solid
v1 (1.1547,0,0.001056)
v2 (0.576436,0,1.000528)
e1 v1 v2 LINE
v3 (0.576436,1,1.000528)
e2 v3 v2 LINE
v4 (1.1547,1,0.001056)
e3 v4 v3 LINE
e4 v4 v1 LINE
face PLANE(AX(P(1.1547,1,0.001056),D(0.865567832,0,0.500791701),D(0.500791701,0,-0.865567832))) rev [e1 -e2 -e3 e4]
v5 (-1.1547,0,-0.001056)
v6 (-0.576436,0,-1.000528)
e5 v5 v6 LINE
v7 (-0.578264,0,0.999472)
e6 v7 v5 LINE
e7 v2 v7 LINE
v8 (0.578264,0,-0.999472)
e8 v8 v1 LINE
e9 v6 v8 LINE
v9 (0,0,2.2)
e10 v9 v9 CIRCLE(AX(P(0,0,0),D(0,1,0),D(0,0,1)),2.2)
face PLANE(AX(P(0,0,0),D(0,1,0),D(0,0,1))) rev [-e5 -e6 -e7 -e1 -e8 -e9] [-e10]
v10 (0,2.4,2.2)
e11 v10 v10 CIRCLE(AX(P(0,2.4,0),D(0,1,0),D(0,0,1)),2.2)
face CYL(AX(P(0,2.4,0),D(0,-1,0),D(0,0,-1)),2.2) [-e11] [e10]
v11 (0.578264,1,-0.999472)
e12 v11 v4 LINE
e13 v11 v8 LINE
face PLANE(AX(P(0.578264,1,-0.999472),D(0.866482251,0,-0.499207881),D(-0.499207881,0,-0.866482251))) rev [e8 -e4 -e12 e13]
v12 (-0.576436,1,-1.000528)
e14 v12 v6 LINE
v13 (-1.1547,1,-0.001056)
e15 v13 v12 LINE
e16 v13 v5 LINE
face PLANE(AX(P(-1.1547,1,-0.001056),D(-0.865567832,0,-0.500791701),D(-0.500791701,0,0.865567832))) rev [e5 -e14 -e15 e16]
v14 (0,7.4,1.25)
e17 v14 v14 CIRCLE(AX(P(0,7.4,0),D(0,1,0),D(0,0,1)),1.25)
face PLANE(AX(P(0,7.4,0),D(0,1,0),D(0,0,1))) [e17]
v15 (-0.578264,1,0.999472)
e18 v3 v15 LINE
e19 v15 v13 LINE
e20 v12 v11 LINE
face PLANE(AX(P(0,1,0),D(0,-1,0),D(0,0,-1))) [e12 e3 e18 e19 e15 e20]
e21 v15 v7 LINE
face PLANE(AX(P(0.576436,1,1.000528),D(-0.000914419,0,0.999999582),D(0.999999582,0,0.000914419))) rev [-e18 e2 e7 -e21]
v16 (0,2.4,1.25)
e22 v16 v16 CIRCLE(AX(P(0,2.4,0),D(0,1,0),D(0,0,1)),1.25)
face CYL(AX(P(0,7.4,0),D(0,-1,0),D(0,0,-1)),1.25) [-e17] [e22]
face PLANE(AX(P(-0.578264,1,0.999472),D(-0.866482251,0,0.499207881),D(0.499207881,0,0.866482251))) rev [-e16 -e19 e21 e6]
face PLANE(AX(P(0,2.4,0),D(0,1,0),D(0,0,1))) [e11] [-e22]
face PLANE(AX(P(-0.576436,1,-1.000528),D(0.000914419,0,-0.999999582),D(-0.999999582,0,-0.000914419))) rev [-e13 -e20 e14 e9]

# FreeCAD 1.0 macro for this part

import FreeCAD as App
import Part
import Sketcher
from FreeCAD import Vector
Q = App.Units.Quantity

doc = App.newDocument("Part")
params = doc.addObject("Spreadsheet::Sheet", "Params")
for row, (alias, value) in enumerate([
    ("sketch1_diameter", "4.4 mm"),
    ("pad1_length", "2.4 mm"),
    ("sketch2_diameter", "2.5 mm"),
    ("pad2_length", "5 mm"),
    ("pocket1_length", "1 mm"),
], start=1):
    params.set(f"A{row}", alias)
    params.set(f"B{row}", "=" + value)
    params.setAlias(f"B{row}", alias)

body = doc.addObject("PartDesign::Body", "Body")

# Sketch on XZ plane
sketch1 = doc.addObject("Sketcher::SketchObject", "Sketch")
body.addObject(sketch1)
sketch1.AttachmentSupport = (doc.XZ_Plane, [""])
sketch1.MapMode = "FlatFace"
sketch1.addGeometry(Part.Circle(Vector(0, 0, 0), Vector(0, 0, 1), 2.2), False)
sketch1.addConstraint(Sketcher.Constraint("Coincident", 0, 3, -1, 1))
sketch1.addConstraint(Sketcher.Constraint("Diameter", 0, Q("4.4 mm")))
sketch1.setExpression("Constraints[1]", "Params.sketch1_diameter")
pad1 = doc.addObject("PartDesign::Pad", "Pad")
body.addObject(pad1)
pad1.Profile = sketch1
pad1.setExpression("Length", "Params.pad1_length")
pad1.Reversed = True

# Sketch on XZ plane
sketch2 = doc.addObject("Sketcher::SketchObject", "Sketch001")
body.addObject(sketch2)
sketch2.AttachmentSupport = (doc.XZ_Plane, [""])
sketch2.MapMode = "FlatFace"
sketch2.AttachmentOffset = App.Placement(Vector(0, 0, -2.4), App.Rotation())
sketch2.addGeometry(Part.Circle(Vector(0, 0, 0), Vector(0, 0, 1), 1.2), False)
sketch2.addConstraint(Sketcher.Constraint("Coincident", 0, 3, -1, 1))
sketch2.addConstraint(Sketcher.Constraint("Diameter", 0, Q("2.5 mm")))
sketch2.setExpression("Constraints[1]", "Params.sketch2_diameter")
pad2 = doc.addObject("PartDesign::Pad", "Pad001")
body.addObject(pad2)
pad2.Profile = sketch2
pad2.setExpression("Length", "Params.pad2_length")
pad2.Reversed = True

# Sketch on XZ plane
sketch3 = doc.addObject("Sketcher::SketchObject", "Sketch002")
body.addObject(sketch3)
sketch3.AttachmentSupport = (doc.XZ_Plane, [""])
sketch3.MapMode = "FlatFace"
sketch3.addGeometry(Part.LineSegment(Vector(0.6, 1, 0), Vector(-0.6, 1, 0)), False)
sketch3.addGeometry(Part.LineSegment(Vector(-0.6, 1, 0), Vector(-1.2, 0, 0)), False)
sketch3.addGeometry(Part.LineSegment(Vector(-1.2, 0, 0), Vector(-0.6, -1, 0)), False)
sketch3.addGeometry(Part.LineSegment(Vector(-0.6, -1, 0), Vector(0.6, -1, 0)), False)
sketch3.addGeometry(Part.LineSegment(Vector(0.6, -1, 0), Vector(1.2, 0, 0)), False)
sketch3.addGeometry(Part.LineSegment(Vector(1.2, 0, 0), Vector(0.6, 1, 0)), False)
sketch3.addConstraint(Sketcher.Constraint("Coincident", 0, 2, 1, 1))
sketch3.addConstraint(Sketcher.Constraint("Coincident", 1, 2, 2, 1))
sketch3.addConstraint(Sketcher.Constraint("Coincident", 2, 2, 3, 1))
sketch3.addConstraint(Sketcher.Constraint("Coincident", 3, 2, 4, 1))
sketch3.addConstraint(Sketcher.Constraint("Coincident", 4, 2, 5, 1))
sketch3.addConstraint(Sketcher.Constraint("Coincident", 5, 2, 0, 1))
sketch3.addConstraint(Sketcher.Constraint("Symmetric", 0, 2, 3, 2, -1, 1))
sketch3.addConstraint(Sketcher.Constraint("Symmetric", 1, 2, 4, 2, -1, 1))
sketch3.addConstraint(Sketcher.Constraint("Symmetric", 2, 2, 5, 2, -1, 1))
sketch3.addConstraint(Sketcher.Constraint("Equal", 0, 1))
sketch3.addConstraint(Sketcher.Constraint("Equal", 1, 2))
sketch3.addConstraint(Sketcher.Constraint("DistanceY", 2, 2, 0, 2, Q("1.999999 mm")))
sketch3.addConstraint(Sketcher.Constraint("Distance", 0, Q("1.154701 mm")))
sketch3.addConstraint(Sketcher.Constraint("DistanceY", -1, 1, 0, 2, Q("0.999472 mm")))
sketch3.addConstraint(Sketcher.Constraint("DistanceY", 2, 2, 1, 2, Q("0.999472 mm")))
pocket1 = doc.addObject("PartDesign::Pocket", "Pocket")
body.addObject(pocket1)
pocket1.Profile = sketch3
pocket1.setExpression("Length", "Params.pocket1_length")

doc.recompute()
